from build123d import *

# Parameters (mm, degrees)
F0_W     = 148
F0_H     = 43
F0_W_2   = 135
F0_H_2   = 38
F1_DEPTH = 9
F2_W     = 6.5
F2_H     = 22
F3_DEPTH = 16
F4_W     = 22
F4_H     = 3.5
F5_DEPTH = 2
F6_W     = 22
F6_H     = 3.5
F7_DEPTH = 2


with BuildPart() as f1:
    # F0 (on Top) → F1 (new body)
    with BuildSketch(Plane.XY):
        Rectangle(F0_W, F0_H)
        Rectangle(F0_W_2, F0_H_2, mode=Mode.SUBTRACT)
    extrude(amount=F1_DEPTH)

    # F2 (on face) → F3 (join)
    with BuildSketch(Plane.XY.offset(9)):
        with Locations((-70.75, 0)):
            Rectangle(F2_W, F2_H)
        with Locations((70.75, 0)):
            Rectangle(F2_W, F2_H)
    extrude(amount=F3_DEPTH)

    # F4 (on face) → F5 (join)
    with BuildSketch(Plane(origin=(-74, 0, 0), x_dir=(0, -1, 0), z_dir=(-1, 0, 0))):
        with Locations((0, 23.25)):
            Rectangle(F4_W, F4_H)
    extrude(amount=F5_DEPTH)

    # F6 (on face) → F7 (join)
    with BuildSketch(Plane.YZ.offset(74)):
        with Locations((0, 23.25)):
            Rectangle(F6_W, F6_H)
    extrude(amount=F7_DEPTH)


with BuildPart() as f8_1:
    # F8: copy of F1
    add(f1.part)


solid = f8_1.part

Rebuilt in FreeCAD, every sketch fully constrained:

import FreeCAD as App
import Part
import Sketcher

doc = App.newDocument("Part")
body = doc.addObject("PartDesign::Body", "Body")

sketch1 = doc.addObject("Sketcher::SketchObject", "Sketch")
body.addObject(sketch1)
sketch1.AttachmentSupport = (doc.XY_Plane, [""])
sketch1.MapMode = "FlatFace"
sketch1.addGeometry(Part.LineSegment(App.Vector(-74, 22, 0), App.Vector(-74, -22, 0)), False)
sketch1.addGeometry(Part.LineSegment(App.Vector(-74, -22, 0), App.Vector(74, -22, 0)), False)
sketch1.addGeometry(Part.LineSegment(App.Vector(74, -22, 0), App.Vector(74, 22, 0)), False)
sketch1.addGeometry(Part.LineSegment(App.Vector(74, 22, 0), App.Vector(-74, 22, 0)), False)
sketch1.addGeometry(Part.LineSegment(App.Vector(68, -19, 0), App.Vector(-68, -19, 0)), False)
sketch1.addGeometry(Part.LineSegment(App.Vector(-68, -19, 0), App.Vector(-68, 19, 0)), False)
sketch1.addGeometry(Part.LineSegment(App.Vector(-68, 19, 0), App.Vector(68, 19, 0)), False)
sketch1.addGeometry(Part.LineSegment(App.Vector(68, 19, 0), App.Vector(68, -19, 0)), False)
sketch1.addConstraint(Sketcher.Constraint("Coincident", 0, 2, 1, 1))
sketch1.addConstraint(Sketcher.Constraint("Coincident", 1, 2, 2, 1))
sketch1.addConstraint(Sketcher.Constraint("Coincident", 2, 2, 3, 1))
sketch1.addConstraint(Sketcher.Constraint("Coincident", 3, 2, 0, 1))
sketch1.addConstraint(Sketcher.Constraint("Coincident", 4, 2, 5, 1))
sketch1.addConstraint(Sketcher.Constraint("Coincident", 5, 2, 6, 1))
sketch1.addConstraint(Sketcher.Constraint("Coincident", 6, 2, 7, 1))
sketch1.addConstraint(Sketcher.Constraint("Coincident", 7, 2, 4, 1))
sketch1.addConstraint(Sketcher.Constraint("Vertical", 0))
sketch1.addConstraint(Sketcher.Constraint("Horizontal", 1))
sketch1.addConstraint(Sketcher.Constraint("Vertical", 2))
sketch1.addConstraint(Sketcher.Constraint("Horizontal", 3))
sketch1.addConstraint(Sketcher.Constraint("Horizontal", 4))
sketch1.addConstraint(Sketcher.Constraint("Vertical", 5))
sketch1.addConstraint(Sketcher.Constraint("Horizontal", 6))
sketch1.addConstraint(Sketcher.Constraint("Vertical", 7))
sketch1.addConstraint(Sketcher.Constraint("Symmetric", 0, 2, 2, 2, -1, 1))
sketch1.addConstraint(Sketcher.Constraint("Symmetric", 4, 2, 6, 2, -1, 1))
sketch1.addConstraint(Sketcher.Constraint("DistanceX", 1, 1, 1, 2, 148.0))
sketch1.addConstraint(Sketcher.Constraint("DistanceX", 4, 2, 4, 1, 135.0))
sketch1.addConstraint(Sketcher.Constraint("DistanceY", 0, 2, 0, 1, 43.0))
sketch1.addConstraint(Sketcher.Constraint("DistanceY", 5, 1, 5, 2, 38.0))
pad1 = doc.addObject("PartDesign::Pad", "Pad")
body.addObject(pad1)
pad1.Profile = sketch1
pad1.Length = 9

sketch2 = doc.addObject("Sketcher::SketchObject", "Sketch001")
body.addObject(sketch2)
sketch2.AttachmentSupport = (doc.XY_Plane, [""])
sketch2.MapMode = "FlatFace"
sketch2.AttachmentOffset = App.Placement(App.Vector(0, 0, 9), App.Rotation())
sketch2.addGeometry(Part.LineSegment(App.Vector(-74, 11, 0), App.Vector(-74, -11, 0)), False)
sketch2.addGeometry(Part.LineSegment(App.Vector(-74, -11, 0), App.Vector(-68, -11, 0)), False)
sketch2.addGeometry(Part.LineSegment(App.Vector(-68, -11, 0), App.Vector(-68, 11, 0)), False)
sketch2.addGeometry(Part.LineSegment(App.Vector(-68, 11, 0), App.Vector(-74, 11, 0)), False)
sketch2.addGeometry(Part.LineSegment(App.Vector(68, 11, 0), App.Vector(68, -11, 0)), False)
sketch2.addGeometry(Part.LineSegment(App.Vector(68, -11, 0), App.Vector(74, -11, 0)), False)
sketch2.addGeometry(Part.LineSegment(App.Vector(74, -11, 0), App.Vector(74, 11, 0)), False)
sketch2.addGeometry(Part.LineSegment(App.Vector(74, 11, 0), App.Vector(68, 11, 0)), False)
sketch2.addConstraint(Sketcher.Constraint("Coincident", 0, 2, 1, 1))
sketch2.addConstraint(Sketcher.Constraint("Coincident", 1, 2, 2, 1))
sketch2.addConstraint(Sketcher.Constraint("Coincident", 2, 2, 3, 1))
sketch2.addConstraint(Sketcher.Constraint("Coincident", 3, 2, 0, 1))
sketch2.addConstraint(Sketcher.Constraint("Coincident", 4, 2, 5, 1))
sketch2.addConstraint(Sketcher.Constraint("Coincident", 5, 2, 6, 1))
sketch2.addConstraint(Sketcher.Constraint("Coincident", 6, 2, 7, 1))
sketch2.addConstraint(Sketcher.Constraint("Coincident", 7, 2, 4, 1))
sketch2.addConstraint(Sketcher.Constraint("Vertical", 0))
sketch2.addConstraint(Sketcher.Constraint("Horizontal", 1))
sketch2.addConstraint(Sketcher.Constraint("Vertical", 2))
sketch2.addConstraint(Sketcher.Constraint("Horizontal", 3))
sketch2.addConstraint(Sketcher.Constraint("Vertical", 4))
sketch2.addConstraint(Sketcher.Constraint("Horizontal", 5))
sketch2.addConstraint(Sketcher.Constraint("Vertical", 6))
sketch2.addConstraint(Sketcher.Constraint("Horizontal", 7))
sketch2.addConstraint(Sketcher.Constraint("Symmetric", 2, 2, 4, 2, -1, 1))
sketch2.addConstraint(Sketcher.Constraint("Symmetric", 0, 2, 6, 2, -1, 1))
sketch2.addConstraint(Sketcher.Constraint("Horizontal", 1, 2, 4, 2))
sketch2.addConstraint(Sketcher.Constraint("DistanceY", 0, 2, 0, 1, 22.0))
sketch2.addConstraint(Sketcher.Constraint("DistanceX", 1, 1, 1, 2, 6.5))
sketch2.addConstraint(Sketcher.Constraint("DistanceX", 0, 2, -1, 1, 74.0))
pad2 = doc.addObject("PartDesign::Pad", "Pad001")
body.addObject(pad2)
pad2.Profile = sketch2
pad2.Length = 16

sketch3 = doc.addObject("Sketcher::SketchObject", "Sketch002")
body.addObject(sketch3)
sketch3.AttachmentSupport = (doc.YZ_Plane, [""])
sketch3.MapMode = "FlatFace"
sketch3.AttachmentOffset = App.Placement(App.Vector(0, 0, -74), App.Rotation())
sketch3.addGeometry(Part.LineSegment(App.Vector(11, 25, 0), App.Vector(11, 21.5, 0)), False)
sketch3.addGeometry(Part.LineSegment(App.Vector(11, 21.5, 0), App.Vector(-11, 21.5, 0)), False)
sketch3.addGeometry(Part.LineSegment(App.Vector(-11, 21.5, 0), App.Vector(-11, 25, 0)), False)
sketch3.addGeometry(Part.LineSegment(App.Vector(-11, 25, 0), App.Vector(11, 25, 0)), False)
sketch3.addConstraint(Sketcher.Constraint("Coincident", 0, 2, 1, 1))
sketch3.addConstraint(Sketcher.Constraint("Coincident", 1, 2, 2, 1))
sketch3.addConstraint(Sketcher.Constraint("Coincident", 2, 2, 3, 1))
sketch3.addConstraint(Sketcher.Constraint("Coincident", 3, 2, 0, 1))
sketch3.addConstraint(Sketcher.Constraint("Vertical", 0))
sketch3.addConstraint(Sketcher.Constraint("Horizontal", 1))
sketch3.addConstraint(Sketcher.Constraint("Vertical", 2))
sketch3.addConstraint(Sketcher.Constraint("Horizontal", 3))
sketch3.addConstraint(Sketcher.Constraint("DistanceX", 1, 2, 1, 1, 22.0))
sketch3.addConstraint(Sketcher.Constraint("DistanceY", 0, 2, 0, 1, 3.5))
sketch3.addConstraint(Sketcher.Constraint("DistanceX", -1, 1, 0, 2, 11.0))
sketch3.addConstraint(Sketcher.Constraint("DistanceY", -1, 1, 2, 2, 25.0))
pad3 = doc.addObject("PartDesign::Pad", "Pad002")
body.addObject(pad3)
pad3.Profile = sketch3
pad3.Length = 2
pad3.Reversed = True

sketch4 = doc.addObject("Sketcher::SketchObject", "Sketch003")
body.addObject(sketch4)
sketch4.AttachmentSupport = (doc.YZ_Plane, [""])
sketch4.MapMode = "FlatFace"
sketch4.AttachmentOffset = App.Placement(App.Vector(0, 0, 74), App.Rotation())
sketch4.addGeometry(Part.LineSegment(App.Vector(-11, 25, 0), App.Vector(-11, 21.5, 0)), False)
sketch4.addGeometry(Part.LineSegment(App.Vector(-11, 21.5, 0), App.Vector(11, 21.5, 0)), False)
sketch4.addGeometry(Part.LineSegment(App.Vector(11, 21.5, 0), App.Vector(11, 25, 0)), False)
sketch4.addGeometry(Part.LineSegment(App.Vector(11, 25, 0), App.Vector(-11, 25, 0)), False)
sketch4.addConstraint(Sketcher.Constraint("Coincident", 0, 2, 1, 1))
sketch4.addConstraint(Sketcher.Constraint("Coincident", 1, 2, 2, 1))
sketch4.addConstraint(Sketcher.Constraint("Coincident", 2, 2, 3, 1))
sketch4.addConstraint(Sketcher.Constraint("Coincident", 3, 2, 0, 1))
sketch4.addConstraint(Sketcher.Constraint("Vertical", 0))
sketch4.addConstraint(Sketcher.Constraint("Horizontal", 1))
sketch4.addConstraint(Sketcher.Constraint("Vertical", 2))
sketch4.addConstraint(Sketcher.Constraint("Horizontal", 3))
sketch4.addConstraint(Sketcher.Constraint("DistanceX", 1, 1, 1, 2, 22.0))
sketch4.addConstraint(Sketcher.Constraint("DistanceY", 0, 2, 0, 1, 3.5))
sketch4.addConstraint(Sketcher.Constraint("DistanceX", 0, 2, -1, 1, 11.0))
sketch4.addConstraint(Sketcher.Constraint("DistanceY", -1, 1, 2, 2, 25.0))
pad4 = doc.addObject("PartDesign::Pad", "Pad003")
body.addObject(pad4)
pad4.Profile = sketch4
pad4.Length = 2

doc.recompute()
